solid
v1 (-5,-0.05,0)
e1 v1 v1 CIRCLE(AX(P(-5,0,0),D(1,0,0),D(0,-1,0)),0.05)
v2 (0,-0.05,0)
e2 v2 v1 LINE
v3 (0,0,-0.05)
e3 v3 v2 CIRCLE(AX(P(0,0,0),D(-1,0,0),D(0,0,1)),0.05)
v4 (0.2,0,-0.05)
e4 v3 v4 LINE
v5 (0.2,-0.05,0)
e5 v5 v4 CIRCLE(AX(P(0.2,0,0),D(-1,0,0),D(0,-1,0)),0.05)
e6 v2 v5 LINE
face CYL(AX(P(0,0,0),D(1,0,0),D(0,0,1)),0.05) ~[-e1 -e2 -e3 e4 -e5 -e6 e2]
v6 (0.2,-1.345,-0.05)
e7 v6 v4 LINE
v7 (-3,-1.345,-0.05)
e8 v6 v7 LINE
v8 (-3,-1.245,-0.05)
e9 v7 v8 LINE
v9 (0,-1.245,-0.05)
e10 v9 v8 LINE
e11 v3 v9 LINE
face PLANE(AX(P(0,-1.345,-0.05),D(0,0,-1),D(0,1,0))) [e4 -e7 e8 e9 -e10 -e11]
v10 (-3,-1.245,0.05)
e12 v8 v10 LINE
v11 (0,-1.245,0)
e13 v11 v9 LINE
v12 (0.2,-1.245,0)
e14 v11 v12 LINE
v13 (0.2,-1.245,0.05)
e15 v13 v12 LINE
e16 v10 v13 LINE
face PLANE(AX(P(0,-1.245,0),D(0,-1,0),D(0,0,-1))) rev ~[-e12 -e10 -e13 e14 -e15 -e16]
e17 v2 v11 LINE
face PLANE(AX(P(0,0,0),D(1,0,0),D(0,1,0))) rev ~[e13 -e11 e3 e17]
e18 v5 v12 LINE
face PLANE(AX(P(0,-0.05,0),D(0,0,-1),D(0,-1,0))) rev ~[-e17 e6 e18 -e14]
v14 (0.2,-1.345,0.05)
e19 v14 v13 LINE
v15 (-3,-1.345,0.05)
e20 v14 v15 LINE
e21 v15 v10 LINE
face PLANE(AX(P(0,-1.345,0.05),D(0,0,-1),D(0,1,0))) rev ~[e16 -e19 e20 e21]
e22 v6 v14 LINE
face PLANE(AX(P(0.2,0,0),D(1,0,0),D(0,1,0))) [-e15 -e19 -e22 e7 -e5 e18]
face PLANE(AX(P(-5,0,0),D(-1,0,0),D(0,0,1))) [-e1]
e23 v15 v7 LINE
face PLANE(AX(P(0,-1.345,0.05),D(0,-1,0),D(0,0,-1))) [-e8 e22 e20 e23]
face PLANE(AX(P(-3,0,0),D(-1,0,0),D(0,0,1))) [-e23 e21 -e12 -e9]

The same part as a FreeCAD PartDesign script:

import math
import FreeCAD as App
import Part
import Sketcher
Q = App.Units.Quantity

doc = App.newDocument("Part")
body = doc.addObject("PartDesign::Body", "Body")

# Sketch on YZ plane
sketch1 = body.newObject("Sketcher::SketchObject", "Sketch")
sketch1.AttachmentSupport = (doc.getObject("YZ_Plane"), [""])
sketch1.MapMode = "FlatFace"
sketch1.addGeometry(Part.LineSegment(App.Vector(-0.05, 0, 0), App.Vector(-1.25, 0, 0)), False)
sketch1.addGeometry(Part.LineSegment(App.Vector(-1.25, 0, 0), App.Vector(-1.25, 0.05, 0)), False)
sketch1.addGeometry(Part.LineSegment(App.Vector(-1.25, 0.05, 0), App.Vector(-1.34, 0.05, 0)), False)
sketch1.addGeometry(Part.LineSegment(App.Vector(-1.34, 0.05, 0), App.Vector(-1.34, -0.05, 0)), False)
sketch1.addGeometry(Part.LineSegment(App.Vector(-1.34, -0.05, 0), App.Vector(0, -0.05, 0)), False)
sketch1.addGeometry(Part.ArcOfCircle(Part.Circle(App.Vector(0, 0, 0), App.Vector(0, 0, 1), 0.05), math.radians(-90), math.radians(180)), False)
sketch1.addConstraint(Sketcher.Constraint("Coincident", 0, 2, 1, 1))
sketch1.addConstraint(Sketcher.Constraint("Coincident", 1, 2, 2, 1))
sketch1.addConstraint(Sketcher.Constraint("Coincident", 2, 2, 3, 1))
sketch1.addConstraint(Sketcher.Constraint("Coincident", 3, 2, 4, 1))
sketch1.addConstraint(Sketcher.Constraint("Tangent", 4, 2, 5, 1))
sketch1.addConstraint(Sketcher.Constraint("Coincident", 5, 2, 0, 1))
sketch1.addConstraint(Sketcher.Constraint("Horizontal", 0))
sketch1.addConstraint(Sketcher.Constraint("Vertical", 1))
sketch1.addConstraint(Sketcher.Constraint("Horizontal", 2))
sketch1.addConstraint(Sketcher.Constraint("Vertical", 3))
sketch1.addConstraint(Sketcher.Constraint("Horizontal", 4))
sketch1.addConstraint(Sketcher.Constraint("Coincident", 5, 3, -1, 1))
sketch1.addConstraint(Sketcher.Constraint("PointOnObject", 0, 2, -1))
sketch1.addConstraint(Sketcher.Constraint("Equal", 2, 3))
sketch1.addConstraint(Sketcher.Constraint("Radius", 5, Q("0.05 mm")))
sketch1.addConstraint(Sketcher.Constraint("DistanceX", 2, 2, 2, 1, Q("0.1 mm")))
sketch1.addConstraint(Sketcher.Constraint("DistanceX", 2, 2, 5, 2, Q("1.295 mm")))
pad1 = body.newObject("PartDesign::Pad", "Pad")
pad1.Profile = sketch1
pad1.Length = 0.2

# Sketch on YZ plane
sketch2 = body.newObject("Sketcher::SketchObject", "Sketch001")
sketch2.AttachmentSupport = (doc.getObject("YZ_Plane"), [""])
sketch2.MapMode = "FlatFace"
sketch2.addGeometry(Part.Circle(App.Vector(0, 0, 0), App.Vector(0, 0, 1), 0.05), False)
sketch2.addConstraint(Sketcher.Constraint("Coincident", 0, 3, -1, 1))
sketch2.addConstraint(Sketcher.Constraint("Diameter", 0, Q("0.1 mm")))
pad2 = body.newObject("PartDesign::Pad", "Pad001")
pad2.Profile = sketch2
pad2.Length = 5
pad2.Reversed = True

# Sketch on YZ plane
sketch3 = body.newObject("Sketcher::SketchObject", "Sketch002")
sketch3.AttachmentSupport = (doc.getObject("YZ_Plane"), [""])
sketch3.MapMode = "FlatFace"
sketch3.addGeometry(Part.LineSegment(App.Vector(-1.25, -0.05, 0), App.Vector(-1.34, -0.05, 0)), False)
sketch3.addGeometry(Part.LineSegment(App.Vector(-1.34, -0.05, 0), App.Vector(-1.34, 0.05, 0)), False)
sketch3.addGeometry(Part.LineSegment(App.Vector(-1.34, 0.05, 0), App.Vector(-1.25, 0.05, 0)), False)
sketch3.addGeometry(Part.LineSegment(App.Vector(-1.25, 0.05, 0), App.Vector(-1.25, -0.05, 0)), False)
sketch3.addConstraint(Sketcher.Constraint("Coincident", 0, 2, 1, 1))
sketch3.addConstraint(Sketcher.Constraint("Coincident", 1, 2, 2, 1))
sketch3.addConstraint(Sketcher.Constraint("Coincident", 2, 2, 3, 1))
sketch3.addConstraint(Sketcher.Constraint("Coincident", 3, 2, 0, 1))
sketch3.addConstraint(Sketcher.Constraint("Horizontal", 0))
sketch3.addConstraint(Sketcher.Constraint("Vertical", 1))
sketch3.addConstraint(Sketcher.Constraint("Horizontal", 2))
sketch3.addConstraint(Sketcher.Constraint("Vertical", 3))
sketch3.addConstraint(Sketcher.Constraint("Equal", 2, 1))
sketch3.addConstraint(Sketcher.Constraint("DistanceX", 0, 2, 0, 1, Q("0.1 mm")))
sketch3.addConstraint(Sketcher.Constraint("DistanceY", 0, 2, -1, 1, Q("0.05 mm")))
sketch3.addConstraint(Sketcher.Constraint("DistanceX", 0, 2, -1, 1, Q("1.345 mm")))
pad3 = body.newObject("PartDesign::Pad", "Pad002")
pad3.Profile = sketch3
pad3.Length = 3
pad3.Reversed = True

doc.recompute()
